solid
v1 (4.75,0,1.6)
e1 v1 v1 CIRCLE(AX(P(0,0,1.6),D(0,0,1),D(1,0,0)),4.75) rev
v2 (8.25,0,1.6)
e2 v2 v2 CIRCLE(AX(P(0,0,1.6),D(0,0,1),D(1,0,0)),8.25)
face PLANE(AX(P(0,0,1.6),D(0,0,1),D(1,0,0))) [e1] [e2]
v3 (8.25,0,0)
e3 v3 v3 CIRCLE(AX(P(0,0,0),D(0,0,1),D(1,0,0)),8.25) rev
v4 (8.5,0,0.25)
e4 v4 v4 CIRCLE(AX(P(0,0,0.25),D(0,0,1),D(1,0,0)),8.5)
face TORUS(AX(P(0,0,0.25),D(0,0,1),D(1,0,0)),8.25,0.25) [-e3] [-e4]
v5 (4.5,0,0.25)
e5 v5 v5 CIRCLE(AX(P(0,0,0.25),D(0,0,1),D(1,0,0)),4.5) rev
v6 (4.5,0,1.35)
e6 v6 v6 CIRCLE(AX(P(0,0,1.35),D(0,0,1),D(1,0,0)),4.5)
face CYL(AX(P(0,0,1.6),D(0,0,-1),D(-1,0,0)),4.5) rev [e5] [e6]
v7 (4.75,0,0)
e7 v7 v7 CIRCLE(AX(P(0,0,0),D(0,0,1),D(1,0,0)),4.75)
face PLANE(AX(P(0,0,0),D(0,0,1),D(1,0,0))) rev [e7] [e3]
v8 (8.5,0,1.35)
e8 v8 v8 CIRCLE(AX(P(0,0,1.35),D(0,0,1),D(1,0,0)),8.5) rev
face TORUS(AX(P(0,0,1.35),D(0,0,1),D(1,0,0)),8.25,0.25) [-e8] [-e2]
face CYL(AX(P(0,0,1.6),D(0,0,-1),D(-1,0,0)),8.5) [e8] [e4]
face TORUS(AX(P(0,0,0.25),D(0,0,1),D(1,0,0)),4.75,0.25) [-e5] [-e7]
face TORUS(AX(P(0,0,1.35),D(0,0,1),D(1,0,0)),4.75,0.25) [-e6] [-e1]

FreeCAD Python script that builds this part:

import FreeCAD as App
import Part
import Sketcher

V = App.Vector


def edges_at(feature, points):
    """Names of the edges that pass closest to the given points."""
    edges = feature.Shape.Edges
    near = lambda p: min(range(len(edges)), key=lambda i: edges[i].distToShape(Part.Vertex(*p))[0])
    return sorted({f"Edge{near(p) + 1}" for p in points})

doc = App.newDocument("Part")
body = doc.addObject("PartDesign::Body", "Body")

sketch1 = body.newObject("Sketcher::SketchObject", "Sketch")
sketch1.AttachmentSupport = (doc.getObject("XY_Plane"), [""])
sketch1.MapMode = "FlatFace"
sketch1.addGeometry([
    Part.Circle(V(0, 0, 0), V(0, 0, 1), 8.5),
    Part.Circle(V(0, 0, 0), V(0, 0, 1), 4.5),
], False)
sketch1.addConstraint([
    Sketcher.Constraint("Coincident", 0, 3, -1, 1),
    Sketcher.Constraint("Coincident", 1, 3, -1, 1),
    Sketcher.Constraint("Diameter", 0, 17.0),
    Sketcher.Constraint("Diameter", 1, 9.0),
])
pad1 = body.newObject("PartDesign::Pad", "Pad")
pad1.Profile = sketch1
pad1.Length = 1.6
doc.recompute()

fillet = body.newObject("PartDesign::Fillet", "Fillet")
fillet.Base = (pad1, edges_at(pad1, [
    (-8.5, 0, 0),
    (-8.5, 0, 1.6),
    (-4.5, 0, 0),
    (-4.5, 0, 1.6),
]))
fillet.Radius = 0.25

doc.recompute()
